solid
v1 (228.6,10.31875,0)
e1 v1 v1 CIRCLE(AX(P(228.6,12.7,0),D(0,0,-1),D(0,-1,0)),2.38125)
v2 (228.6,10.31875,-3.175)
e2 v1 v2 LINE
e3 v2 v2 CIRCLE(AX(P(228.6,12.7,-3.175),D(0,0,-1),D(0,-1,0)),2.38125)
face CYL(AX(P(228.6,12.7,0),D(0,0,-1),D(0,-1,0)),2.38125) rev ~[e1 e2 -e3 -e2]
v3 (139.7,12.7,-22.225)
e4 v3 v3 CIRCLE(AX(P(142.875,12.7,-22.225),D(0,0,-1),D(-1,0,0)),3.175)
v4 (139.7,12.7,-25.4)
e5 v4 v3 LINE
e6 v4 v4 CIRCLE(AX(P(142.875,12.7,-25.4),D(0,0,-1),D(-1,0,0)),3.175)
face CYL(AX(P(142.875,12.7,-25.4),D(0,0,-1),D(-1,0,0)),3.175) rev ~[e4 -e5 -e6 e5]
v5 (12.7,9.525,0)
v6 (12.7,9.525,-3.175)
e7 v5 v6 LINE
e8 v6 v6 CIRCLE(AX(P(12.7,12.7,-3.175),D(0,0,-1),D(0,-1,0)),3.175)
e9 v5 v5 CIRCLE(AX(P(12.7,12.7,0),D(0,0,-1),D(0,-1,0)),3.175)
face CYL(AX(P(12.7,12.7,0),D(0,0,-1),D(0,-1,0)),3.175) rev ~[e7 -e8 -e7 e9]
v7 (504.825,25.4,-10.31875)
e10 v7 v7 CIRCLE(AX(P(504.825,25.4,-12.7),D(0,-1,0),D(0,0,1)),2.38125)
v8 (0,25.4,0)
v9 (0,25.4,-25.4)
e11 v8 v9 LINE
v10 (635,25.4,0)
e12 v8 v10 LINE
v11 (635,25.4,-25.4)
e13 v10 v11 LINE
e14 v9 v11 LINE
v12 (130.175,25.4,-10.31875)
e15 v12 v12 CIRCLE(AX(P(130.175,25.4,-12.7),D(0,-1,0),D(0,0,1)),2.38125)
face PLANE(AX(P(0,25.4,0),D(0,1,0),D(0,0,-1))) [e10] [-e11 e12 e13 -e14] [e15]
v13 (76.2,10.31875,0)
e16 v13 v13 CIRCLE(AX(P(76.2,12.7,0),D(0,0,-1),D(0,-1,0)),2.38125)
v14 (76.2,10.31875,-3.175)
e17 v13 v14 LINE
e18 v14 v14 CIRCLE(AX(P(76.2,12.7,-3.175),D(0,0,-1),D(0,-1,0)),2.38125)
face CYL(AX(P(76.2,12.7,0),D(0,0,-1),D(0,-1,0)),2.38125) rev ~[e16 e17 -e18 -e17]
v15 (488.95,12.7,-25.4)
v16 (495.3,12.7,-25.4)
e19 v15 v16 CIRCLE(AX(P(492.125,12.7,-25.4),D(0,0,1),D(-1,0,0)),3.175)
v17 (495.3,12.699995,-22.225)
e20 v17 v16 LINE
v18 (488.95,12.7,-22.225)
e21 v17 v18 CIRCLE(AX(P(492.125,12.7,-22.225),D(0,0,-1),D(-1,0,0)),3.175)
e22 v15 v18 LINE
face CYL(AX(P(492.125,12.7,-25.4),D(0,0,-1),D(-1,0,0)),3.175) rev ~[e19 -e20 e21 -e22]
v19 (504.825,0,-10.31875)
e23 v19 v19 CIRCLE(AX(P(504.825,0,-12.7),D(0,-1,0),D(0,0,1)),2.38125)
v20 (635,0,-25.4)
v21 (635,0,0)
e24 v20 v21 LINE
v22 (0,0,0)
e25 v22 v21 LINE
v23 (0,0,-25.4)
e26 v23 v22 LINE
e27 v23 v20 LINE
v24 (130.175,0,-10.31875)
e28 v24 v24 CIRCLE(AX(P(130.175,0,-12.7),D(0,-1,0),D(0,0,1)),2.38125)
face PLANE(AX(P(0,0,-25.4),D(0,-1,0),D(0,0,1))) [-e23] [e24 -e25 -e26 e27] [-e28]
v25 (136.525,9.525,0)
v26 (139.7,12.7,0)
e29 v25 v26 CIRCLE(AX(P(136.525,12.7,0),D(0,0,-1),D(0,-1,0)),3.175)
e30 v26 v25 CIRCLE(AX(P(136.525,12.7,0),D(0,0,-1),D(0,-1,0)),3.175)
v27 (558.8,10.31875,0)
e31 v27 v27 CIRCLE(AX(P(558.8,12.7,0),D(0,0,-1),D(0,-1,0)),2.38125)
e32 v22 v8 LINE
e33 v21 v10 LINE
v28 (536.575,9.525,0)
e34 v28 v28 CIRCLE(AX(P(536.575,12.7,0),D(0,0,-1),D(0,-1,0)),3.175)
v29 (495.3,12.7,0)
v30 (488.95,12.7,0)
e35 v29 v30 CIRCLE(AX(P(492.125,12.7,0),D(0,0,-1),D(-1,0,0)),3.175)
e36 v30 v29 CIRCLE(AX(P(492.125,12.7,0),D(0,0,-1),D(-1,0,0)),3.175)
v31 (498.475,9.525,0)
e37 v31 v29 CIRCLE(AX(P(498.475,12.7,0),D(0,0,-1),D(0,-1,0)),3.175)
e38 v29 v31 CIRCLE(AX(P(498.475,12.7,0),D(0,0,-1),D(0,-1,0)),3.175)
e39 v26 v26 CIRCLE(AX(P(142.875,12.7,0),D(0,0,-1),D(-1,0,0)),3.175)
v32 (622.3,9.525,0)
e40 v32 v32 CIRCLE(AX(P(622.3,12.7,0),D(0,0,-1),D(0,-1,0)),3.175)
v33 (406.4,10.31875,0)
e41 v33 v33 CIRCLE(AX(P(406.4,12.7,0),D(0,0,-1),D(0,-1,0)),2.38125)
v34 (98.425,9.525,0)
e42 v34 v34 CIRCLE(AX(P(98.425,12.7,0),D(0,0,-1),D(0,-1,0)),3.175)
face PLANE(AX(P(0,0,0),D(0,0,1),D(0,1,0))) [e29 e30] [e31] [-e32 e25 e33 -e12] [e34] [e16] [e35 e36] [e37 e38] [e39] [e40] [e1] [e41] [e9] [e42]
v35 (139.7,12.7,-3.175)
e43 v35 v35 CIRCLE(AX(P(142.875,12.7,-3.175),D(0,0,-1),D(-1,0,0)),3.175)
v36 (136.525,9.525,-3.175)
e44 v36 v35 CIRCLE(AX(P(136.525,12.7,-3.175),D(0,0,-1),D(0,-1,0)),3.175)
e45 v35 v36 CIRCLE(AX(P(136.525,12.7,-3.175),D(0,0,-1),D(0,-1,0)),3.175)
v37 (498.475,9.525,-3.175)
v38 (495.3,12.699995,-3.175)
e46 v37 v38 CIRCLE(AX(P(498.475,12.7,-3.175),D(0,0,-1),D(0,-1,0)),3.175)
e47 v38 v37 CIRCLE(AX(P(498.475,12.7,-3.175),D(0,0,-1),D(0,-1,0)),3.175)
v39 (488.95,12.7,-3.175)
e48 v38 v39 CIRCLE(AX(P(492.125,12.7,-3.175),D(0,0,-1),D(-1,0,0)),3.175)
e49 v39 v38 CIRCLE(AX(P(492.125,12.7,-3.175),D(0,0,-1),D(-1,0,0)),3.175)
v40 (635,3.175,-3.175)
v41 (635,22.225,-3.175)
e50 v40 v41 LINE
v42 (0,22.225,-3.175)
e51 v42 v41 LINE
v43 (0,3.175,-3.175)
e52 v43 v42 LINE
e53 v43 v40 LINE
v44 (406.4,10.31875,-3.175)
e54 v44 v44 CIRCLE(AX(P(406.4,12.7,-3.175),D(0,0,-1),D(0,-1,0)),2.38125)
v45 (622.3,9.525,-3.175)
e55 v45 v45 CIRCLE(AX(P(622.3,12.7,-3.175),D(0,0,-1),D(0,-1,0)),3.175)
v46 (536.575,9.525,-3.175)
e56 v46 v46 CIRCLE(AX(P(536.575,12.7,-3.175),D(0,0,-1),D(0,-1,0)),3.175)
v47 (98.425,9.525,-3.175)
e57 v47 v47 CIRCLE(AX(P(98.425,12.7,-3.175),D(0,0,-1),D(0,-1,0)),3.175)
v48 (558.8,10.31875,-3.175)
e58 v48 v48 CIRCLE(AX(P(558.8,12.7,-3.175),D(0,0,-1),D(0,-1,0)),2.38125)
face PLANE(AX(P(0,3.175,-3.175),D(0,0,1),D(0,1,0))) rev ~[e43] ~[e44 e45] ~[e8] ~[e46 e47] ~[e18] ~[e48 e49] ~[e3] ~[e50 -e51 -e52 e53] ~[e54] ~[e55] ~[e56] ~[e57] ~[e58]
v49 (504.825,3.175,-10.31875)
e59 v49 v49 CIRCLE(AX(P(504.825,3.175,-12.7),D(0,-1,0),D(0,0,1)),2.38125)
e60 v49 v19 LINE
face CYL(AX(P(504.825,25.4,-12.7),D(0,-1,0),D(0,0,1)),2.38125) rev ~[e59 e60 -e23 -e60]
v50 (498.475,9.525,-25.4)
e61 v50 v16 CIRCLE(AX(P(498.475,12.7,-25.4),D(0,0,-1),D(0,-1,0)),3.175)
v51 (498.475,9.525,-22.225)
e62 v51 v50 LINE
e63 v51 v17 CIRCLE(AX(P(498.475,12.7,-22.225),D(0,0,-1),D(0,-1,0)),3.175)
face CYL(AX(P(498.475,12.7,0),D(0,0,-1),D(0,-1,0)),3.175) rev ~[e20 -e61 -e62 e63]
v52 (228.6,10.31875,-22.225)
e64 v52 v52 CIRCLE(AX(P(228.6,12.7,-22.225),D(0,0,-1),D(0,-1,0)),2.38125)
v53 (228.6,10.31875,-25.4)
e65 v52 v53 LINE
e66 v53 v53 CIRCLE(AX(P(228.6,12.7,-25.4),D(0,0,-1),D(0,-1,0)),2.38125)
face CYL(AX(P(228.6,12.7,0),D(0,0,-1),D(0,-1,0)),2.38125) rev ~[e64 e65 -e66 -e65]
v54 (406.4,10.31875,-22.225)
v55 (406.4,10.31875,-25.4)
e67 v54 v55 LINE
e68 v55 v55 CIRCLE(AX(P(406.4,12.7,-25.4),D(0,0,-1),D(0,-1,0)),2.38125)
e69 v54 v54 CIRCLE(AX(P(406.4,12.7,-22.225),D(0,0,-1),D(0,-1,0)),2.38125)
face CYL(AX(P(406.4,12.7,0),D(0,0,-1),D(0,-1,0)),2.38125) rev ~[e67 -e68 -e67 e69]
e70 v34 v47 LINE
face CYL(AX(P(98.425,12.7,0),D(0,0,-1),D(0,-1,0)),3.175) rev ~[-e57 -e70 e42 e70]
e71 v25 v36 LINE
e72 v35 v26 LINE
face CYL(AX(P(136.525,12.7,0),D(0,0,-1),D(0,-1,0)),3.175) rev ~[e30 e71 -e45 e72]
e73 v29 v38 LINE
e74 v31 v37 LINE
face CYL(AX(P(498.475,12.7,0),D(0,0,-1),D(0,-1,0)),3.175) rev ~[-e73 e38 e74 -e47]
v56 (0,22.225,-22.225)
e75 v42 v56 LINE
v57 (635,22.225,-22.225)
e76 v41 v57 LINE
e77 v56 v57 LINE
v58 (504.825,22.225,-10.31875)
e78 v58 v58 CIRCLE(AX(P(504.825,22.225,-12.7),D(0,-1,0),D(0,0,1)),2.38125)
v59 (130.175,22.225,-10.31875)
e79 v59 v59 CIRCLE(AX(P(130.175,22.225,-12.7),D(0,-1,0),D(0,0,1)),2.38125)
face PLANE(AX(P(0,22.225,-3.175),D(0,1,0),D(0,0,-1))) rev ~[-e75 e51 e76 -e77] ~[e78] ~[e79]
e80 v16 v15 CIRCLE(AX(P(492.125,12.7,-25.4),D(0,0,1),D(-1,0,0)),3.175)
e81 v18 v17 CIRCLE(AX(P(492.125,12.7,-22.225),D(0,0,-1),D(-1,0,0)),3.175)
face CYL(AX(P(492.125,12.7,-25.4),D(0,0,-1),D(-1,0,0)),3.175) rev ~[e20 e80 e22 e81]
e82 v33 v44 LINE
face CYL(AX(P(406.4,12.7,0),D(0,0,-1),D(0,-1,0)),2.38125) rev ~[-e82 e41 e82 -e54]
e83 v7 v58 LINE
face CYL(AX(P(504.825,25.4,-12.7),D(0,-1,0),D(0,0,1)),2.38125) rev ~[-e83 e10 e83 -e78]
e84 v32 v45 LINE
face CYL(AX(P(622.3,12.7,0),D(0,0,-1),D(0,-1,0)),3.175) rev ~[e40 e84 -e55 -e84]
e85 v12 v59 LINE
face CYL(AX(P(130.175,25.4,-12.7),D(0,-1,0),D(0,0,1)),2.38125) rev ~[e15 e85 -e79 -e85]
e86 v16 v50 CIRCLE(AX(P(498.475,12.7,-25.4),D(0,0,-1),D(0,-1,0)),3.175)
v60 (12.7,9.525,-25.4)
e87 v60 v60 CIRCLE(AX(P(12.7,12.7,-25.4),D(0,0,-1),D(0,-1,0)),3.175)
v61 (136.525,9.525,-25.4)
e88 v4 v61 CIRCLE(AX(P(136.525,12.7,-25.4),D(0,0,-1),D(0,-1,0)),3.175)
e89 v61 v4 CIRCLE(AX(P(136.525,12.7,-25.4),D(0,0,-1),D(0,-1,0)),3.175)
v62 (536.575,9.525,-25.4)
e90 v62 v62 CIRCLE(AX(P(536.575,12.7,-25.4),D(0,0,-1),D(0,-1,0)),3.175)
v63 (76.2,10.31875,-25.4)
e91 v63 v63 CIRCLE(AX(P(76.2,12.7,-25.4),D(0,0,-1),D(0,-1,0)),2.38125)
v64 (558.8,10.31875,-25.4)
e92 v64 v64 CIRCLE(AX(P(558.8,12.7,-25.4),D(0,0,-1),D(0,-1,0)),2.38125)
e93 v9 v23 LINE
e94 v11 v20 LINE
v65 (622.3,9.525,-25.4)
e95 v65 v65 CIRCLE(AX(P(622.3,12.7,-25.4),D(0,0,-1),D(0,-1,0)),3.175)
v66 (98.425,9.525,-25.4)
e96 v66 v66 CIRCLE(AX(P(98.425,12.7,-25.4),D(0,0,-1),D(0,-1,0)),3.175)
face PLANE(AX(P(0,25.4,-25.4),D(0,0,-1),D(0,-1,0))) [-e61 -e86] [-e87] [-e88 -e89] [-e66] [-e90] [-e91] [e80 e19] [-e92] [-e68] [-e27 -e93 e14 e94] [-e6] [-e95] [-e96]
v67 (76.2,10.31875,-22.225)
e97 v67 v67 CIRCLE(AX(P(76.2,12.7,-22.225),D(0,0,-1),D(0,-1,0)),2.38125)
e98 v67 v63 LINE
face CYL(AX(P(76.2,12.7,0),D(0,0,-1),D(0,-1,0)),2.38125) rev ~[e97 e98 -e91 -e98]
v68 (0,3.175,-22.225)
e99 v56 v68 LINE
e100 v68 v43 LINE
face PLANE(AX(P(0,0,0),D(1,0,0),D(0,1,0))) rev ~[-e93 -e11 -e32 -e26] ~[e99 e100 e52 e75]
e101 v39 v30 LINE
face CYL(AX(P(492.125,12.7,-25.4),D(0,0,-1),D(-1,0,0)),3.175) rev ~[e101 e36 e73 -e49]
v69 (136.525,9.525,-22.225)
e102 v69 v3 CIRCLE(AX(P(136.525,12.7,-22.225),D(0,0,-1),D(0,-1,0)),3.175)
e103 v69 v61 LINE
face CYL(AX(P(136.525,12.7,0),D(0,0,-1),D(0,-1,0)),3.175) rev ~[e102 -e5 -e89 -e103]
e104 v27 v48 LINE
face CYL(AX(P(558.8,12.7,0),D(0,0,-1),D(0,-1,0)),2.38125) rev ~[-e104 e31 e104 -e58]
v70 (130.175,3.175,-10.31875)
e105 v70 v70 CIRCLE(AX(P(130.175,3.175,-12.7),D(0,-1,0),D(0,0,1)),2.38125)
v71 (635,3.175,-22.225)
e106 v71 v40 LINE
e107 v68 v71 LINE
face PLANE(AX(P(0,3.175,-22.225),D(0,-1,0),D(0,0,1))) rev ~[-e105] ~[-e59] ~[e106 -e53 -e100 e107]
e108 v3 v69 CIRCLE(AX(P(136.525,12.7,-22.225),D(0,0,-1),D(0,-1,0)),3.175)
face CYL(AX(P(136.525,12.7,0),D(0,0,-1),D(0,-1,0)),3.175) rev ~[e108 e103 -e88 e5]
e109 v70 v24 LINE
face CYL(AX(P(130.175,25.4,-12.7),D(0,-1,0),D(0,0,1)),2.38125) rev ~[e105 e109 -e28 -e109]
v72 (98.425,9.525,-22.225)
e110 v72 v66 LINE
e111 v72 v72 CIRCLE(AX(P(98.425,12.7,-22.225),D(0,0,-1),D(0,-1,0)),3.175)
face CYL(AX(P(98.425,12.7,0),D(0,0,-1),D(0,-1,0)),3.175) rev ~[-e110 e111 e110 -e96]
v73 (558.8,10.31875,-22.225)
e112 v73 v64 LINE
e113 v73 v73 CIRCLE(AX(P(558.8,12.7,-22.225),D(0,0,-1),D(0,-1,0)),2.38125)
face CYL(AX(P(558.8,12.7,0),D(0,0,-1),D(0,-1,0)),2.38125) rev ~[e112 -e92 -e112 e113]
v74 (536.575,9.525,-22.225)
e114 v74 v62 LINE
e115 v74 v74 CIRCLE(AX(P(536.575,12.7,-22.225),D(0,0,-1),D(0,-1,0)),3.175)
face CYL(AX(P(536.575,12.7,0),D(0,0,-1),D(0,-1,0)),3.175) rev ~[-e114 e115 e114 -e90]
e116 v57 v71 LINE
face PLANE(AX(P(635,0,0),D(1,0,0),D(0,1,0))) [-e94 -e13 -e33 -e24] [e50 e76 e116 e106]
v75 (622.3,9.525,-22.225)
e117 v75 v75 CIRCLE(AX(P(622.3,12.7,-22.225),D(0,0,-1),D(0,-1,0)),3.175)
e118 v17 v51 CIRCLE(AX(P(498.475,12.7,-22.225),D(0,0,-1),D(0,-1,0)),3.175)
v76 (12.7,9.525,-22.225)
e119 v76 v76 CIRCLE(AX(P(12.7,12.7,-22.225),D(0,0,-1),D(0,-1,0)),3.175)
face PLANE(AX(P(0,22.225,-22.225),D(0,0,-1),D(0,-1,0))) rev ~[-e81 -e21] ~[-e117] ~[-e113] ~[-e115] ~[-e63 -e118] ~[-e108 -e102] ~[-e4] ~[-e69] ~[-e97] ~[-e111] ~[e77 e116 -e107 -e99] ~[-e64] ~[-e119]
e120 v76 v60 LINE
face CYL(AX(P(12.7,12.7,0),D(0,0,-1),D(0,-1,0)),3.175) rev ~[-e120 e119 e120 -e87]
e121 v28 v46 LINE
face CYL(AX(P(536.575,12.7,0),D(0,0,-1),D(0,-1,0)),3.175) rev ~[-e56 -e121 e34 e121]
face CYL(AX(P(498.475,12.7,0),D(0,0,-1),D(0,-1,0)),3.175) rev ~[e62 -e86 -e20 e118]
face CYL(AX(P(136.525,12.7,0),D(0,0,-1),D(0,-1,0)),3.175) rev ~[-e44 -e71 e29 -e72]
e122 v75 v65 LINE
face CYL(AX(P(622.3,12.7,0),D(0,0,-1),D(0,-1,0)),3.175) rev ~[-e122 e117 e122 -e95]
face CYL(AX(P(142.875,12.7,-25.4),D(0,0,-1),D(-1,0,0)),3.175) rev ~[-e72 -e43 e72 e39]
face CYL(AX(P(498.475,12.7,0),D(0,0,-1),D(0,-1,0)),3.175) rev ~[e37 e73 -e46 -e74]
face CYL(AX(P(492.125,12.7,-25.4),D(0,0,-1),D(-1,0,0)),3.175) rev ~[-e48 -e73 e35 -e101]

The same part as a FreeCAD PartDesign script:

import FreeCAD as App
import Part
import Sketcher

V = App.Vector
Q = App.Units.Quantity

doc = App.newDocument("Part")
body = doc.addObject("PartDesign::Body", "Body")

# Sketch on YZ plane
sketch1 = doc.addObject("Sketcher::SketchObject", "Sketch")
body.addObject(sketch1)
sketch1.AttachmentSupport = (doc.YZ_Plane, [""])
sketch1.MapMode = "FlatFace"
sketch1.addGeometry([
    Part.LineSegment(V(25.4, 0, 0), V(0, 0, 0)),  # 0
    Part.LineSegment(V(0, 0, 0), V(0, -25.4, 0)),  # 1
    Part.LineSegment(V(0, -25.4, 0), V(25.4, -25.4, 0)),  # 2
    Part.LineSegment(V(25.4, -25.4, 0), V(25.4, 0, 0)),  # 3
    Part.LineSegment(V(3.175, -22.225, 0), V(3.175, -3.175, 0)),  # 4
    Part.LineSegment(V(3.175, -3.175, 0), V(22.225, -3.175, 0)),  # 5
    Part.LineSegment(V(22.225, -3.175, 0), V(22.225, -22.225, 0)),  # 6
    Part.LineSegment(V(22.225, -22.225, 0), V(3.175, -22.225, 0)),  # 7
], False)
sketch1.addConstraint([
    Sketcher.Constraint("Coincident", 0, 2, 1, 1),
    Sketcher.Constraint("Coincident", 1, 2, 2, 1),
    Sketcher.Constraint("Coincident", 2, 2, 3, 1),
    Sketcher.Constraint("Coincident", 3, 2, 0, 1),
    Sketcher.Constraint("Coincident", 4, 2, 5, 1),
    Sketcher.Constraint("Coincident", 5, 2, 6, 1),
    Sketcher.Constraint("Coincident", 6, 2, 7, 1),
    Sketcher.Constraint("Coincident", 7, 2, 4, 1),
    Sketcher.Constraint("Horizontal", 0),
    Sketcher.Constraint("Vertical", 1),
    Sketcher.Constraint("Horizontal", 2),
    Sketcher.Constraint("Vertical", 3),
    Sketcher.Constraint("Vertical", 4),
    Sketcher.Constraint("Horizontal", 5),
    Sketcher.Constraint("Vertical", 6),
    Sketcher.Constraint("Horizontal", 7),
    Sketcher.Constraint("Coincident", 0, 2, -1, 1),
    Sketcher.Constraint("Equal", 2, 1),
    Sketcher.Constraint("Equal", 7, 4),
    Sketcher.Constraint("DistanceX", 0, 2, 0, 1, Q("1 in")),
    Sketcher.Constraint("DistanceX", 5, 1, 5, 2, Q("0.75 in")),
    Sketcher.Constraint("DistanceX", -1, 1, 4, 2, Q("0.125 in")),
    Sketcher.Constraint("DistanceY", 4, 2, -1, 1, Q("0.125 in")),
])
pad1 = doc.addObject("PartDesign::Pad", "Pad")
body.addObject(pad1)
pad1.Profile = sketch1
pad1.Length = Q("25 in")

# Sketch on XY plane
sketch2 = doc.addObject("Sketcher::SketchObject", "Sketch001")
body.addObject(sketch2)
sketch2.AttachmentSupport = (doc.XY_Plane, [""])
sketch2.MapMode = "FlatFace"
sketch2.addGeometry([
    Part.Circle(V(536.575, 12.7, 0), V(0, 0, 1), 3.175),
    Part.Circle(V(498.475, 12.7, 0), V(0, 0, 1), 3.175),
    Part.Circle(V(136.525, 12.7, 0), V(0, 0, 1), 3.175),
    Part.Circle(V(98.425, 12.7, 0), V(0, 0, 1), 3.175),
], False)
sketch2.addConstraint([
    Sketcher.Constraint("Equal", 0, 1),
    Sketcher.Constraint("Equal", 1, 2),
    Sketcher.Constraint("Equal", 2, 3),
    Sketcher.Constraint("Horizontal", 0, 3, 1, 3),
    Sketcher.Constraint("Horizontal", 1, 3, 2, 3),
    Sketcher.Constraint("Horizontal", 2, 3, 3, 3),
    Sketcher.Constraint("Diameter", 0, Q("0.25 in")),
    Sketcher.Constraint("DistanceY", -1, 1, 0, 3, Q("0.5 in")),
    Sketcher.Constraint("DistanceX", 1, 3, 0, 3, Q("1.5 in")),
    Sketcher.Constraint("DistanceX", 3, 3, 2, 3, Q("1.5 in")),
    Sketcher.Constraint("DistanceX", 2, 3, 1, 3, Q("14.25 in")),
    Sketcher.Constraint("DistanceX", -1, 1, 0, 3, Q("21.125 in")),
])
doc.recompute()
hole = doc.addObject("PartDesign::Hole", "Hole")
body.addObject(hole)
hole.Profile = sketch2
hole.ThreadType = "None"
hole.Diameter = Q("0.25 in")
hole.DepthType = "ThroughAll"

# Sketch on XY plane
sketch3 = doc.addObject("Sketcher::SketchObject", "Sketch002")
body.addObject(sketch3)
sketch3.AttachmentSupport = (doc.XY_Plane, [""])
sketch3.MapMode = "FlatFace"
sketch3.addGeometry([
    Part.Circle(V(12.7, 12.7, 0), V(0, 0, 1), 3.175),
    Part.Circle(V(622.3, 12.7, 0), V(0, 0, 1), 3.175),
], False)
sketch3.addConstraint([
    Sketcher.Constraint("Equal", 0, 1),
    Sketcher.Constraint("Horizontal", 0, 3, 1, 3),
    Sketcher.Constraint("Diameter", 0, Q("0.25 in")),
    Sketcher.Constraint("DistanceX", 0, 3, 1, 3, Q("24 in")),
    Sketcher.Constraint("DistanceX", -1, 1, 0, 3, Q("0.5 in")),
    Sketcher.Constraint("DistanceY", -1, 1, 0, 3, Q("0.5 in")),
])
doc.recompute()
hole2 = doc.addObject("PartDesign::Hole", "Hole001")
body.addObject(hole2)
hole2.Profile = sketch3
hole2.ThreadType = "None"
hole2.Diameter = Q("0.25 in")
hole2.DepthType = "ThroughAll"

# Sketch on XY plane
sketch4 = doc.addObject("Sketcher::SketchObject", "Sketch003")
body.addObject(sketch4)
sketch4.AttachmentSupport = (doc.XY_Plane, [""])
sketch4.MapMode = "FlatFace"
sketch4.addGeometry([
    Part.Circle(V(76.2, 12.7, 0), V(0, 0, 1), 2.38125),
    Part.Circle(V(228.6, 12.7, 0), V(0, 0, 1), 2.38125),
    Part.Circle(V(406.4, 12.7, 0), V(0, 0, 1), 2.38125),
    Part.Circle(V(558.8, 12.7, 0), V(0, 0, 1), 2.38125),
], False)
sketch4.addConstraint([
    Sketcher.Constraint("Equal", 0, 1),
    Sketcher.Constraint("Equal", 1, 2),
    Sketcher.Constraint("Equal", 2, 3),
    Sketcher.Constraint("Horizontal", 0, 3, 1, 3),
    Sketcher.Constraint("Horizontal", 1, 3, 2, 3),
    Sketcher.Constraint("Horizontal", 2, 3, 3, 3),
    Sketcher.Constraint("Diameter", 0, Q("0.1875 in")),
    Sketcher.Constraint("DistanceX", -1, 1, 0, 3, Q("3 in")),
    Sketcher.Constraint("DistanceX", -1, 1, 1, 3, Q("9 in")),
    Sketcher.Constraint("DistanceX", -1, 1, 2, 3, Q("16 in")),
    Sketcher.Constraint("DistanceX", -1, 1, 3, 3, Q("22 in")),
    Sketcher.Constraint("DistanceY", -1, 1, 0, 3, Q("0.5 in")),
])
doc.recompute()
hole3 = doc.addObject("PartDesign::Hole", "Hole002")
body.addObject(hole3)
hole3.Profile = sketch4
hole3.ThreadType = "None"
hole3.Diameter = Q("0.1875 in")
hole3.DepthType = "ThroughAll"

# Sketch on XY plane
sketch5 = doc.addObject("Sketcher::SketchObject", "Sketch004")
body.addObject(sketch5)
sketch5.AttachmentSupport = (doc.XY_Plane, [""])
sketch5.MapMode = "FlatFace"
sketch5.AttachmentOffset = App.Placement(V(0, 0, -1 * 25.4), App.Rotation())
sketch5.addGeometry([
    Part.Circle(V(142.875, 12.7, 0), V(0, 0, 1), 3.175),
    Part.Circle(V(492.125, 12.7, 0), V(0, 0, 1), 3.175),
], False)
sketch5.addConstraint([
    Sketcher.Constraint("Equal", 0, 1),
    Sketcher.Constraint("Horizontal", 0, 3, 1, 3),
    Sketcher.Constraint("Diameter", 0, Q("0.25 in")),
    Sketcher.Constraint("DistanceY", -1, 1, 0, 3, Q("0.5 in")),
    Sketcher.Constraint("DistanceX", 0, 3, 1, 3, Q("13.75 in")),
    Sketcher.Constraint("DistanceX", -1, 1, 0, 3, Q("5.625 in")),
])
pocket1 = doc.addObject("PartDesign::Pocket", "Pocket")
body.addObject(pocket1)
pocket1.Profile = sketch5
pocket1.Length = Q("1 in")
pocket1.Reversed = True

# Sketch on XZ plane
sketch6 = doc.addObject("Sketcher::SketchObject", "Sketch005")
body.addObject(sketch6)
sketch6.AttachmentSupport = (doc.XZ_Plane, [""])
sketch6.MapMode = "FlatFace"
sketch6.AttachmentOffset = App.Placement(V(0, 0, -1 * 25.4), App.Rotation())
sketch6.addGeometry([
    Part.Circle(V(504.825, -12.7, 0), V(0, 0, 1), 2.38125),
    Part.Circle(V(130.175, -12.7, 0), V(0, 0, 1), 2.38125),
], False)
sketch6.addConstraint([
    Sketcher.Constraint("Equal", 0, 1),
    Sketcher.Constraint("Horizontal", 0, 3, 1, 3),
    Sketcher.Constraint("Diameter", 0, Q("0.1875 in")),
    Sketcher.Constraint("DistanceY", 0, 3, -1, 1, Q("0.5 in")),
    Sketcher.Constraint("DistanceX", 1, 3, 0, 3, Q("14.75 in")),
    Sketcher.Constraint("DistanceX", -1, 1, 0, 3, Q("19.875 in")),
])
doc.recompute()
hole4 = doc.addObject("PartDesign::Hole", "Hole003")
body.addObject(hole4)
hole4.Profile = sketch6
hole4.ThreadType = "None"
hole4.Diameter = Q("0.1875 in")
hole4.DepthType = "Dimension"
hole4.Depth = Q("1 in")
hole4.DrillPoint = "Angled"
hole4.DrillPointAngle = 118
hole4.Reversed = True

doc.recompute()
